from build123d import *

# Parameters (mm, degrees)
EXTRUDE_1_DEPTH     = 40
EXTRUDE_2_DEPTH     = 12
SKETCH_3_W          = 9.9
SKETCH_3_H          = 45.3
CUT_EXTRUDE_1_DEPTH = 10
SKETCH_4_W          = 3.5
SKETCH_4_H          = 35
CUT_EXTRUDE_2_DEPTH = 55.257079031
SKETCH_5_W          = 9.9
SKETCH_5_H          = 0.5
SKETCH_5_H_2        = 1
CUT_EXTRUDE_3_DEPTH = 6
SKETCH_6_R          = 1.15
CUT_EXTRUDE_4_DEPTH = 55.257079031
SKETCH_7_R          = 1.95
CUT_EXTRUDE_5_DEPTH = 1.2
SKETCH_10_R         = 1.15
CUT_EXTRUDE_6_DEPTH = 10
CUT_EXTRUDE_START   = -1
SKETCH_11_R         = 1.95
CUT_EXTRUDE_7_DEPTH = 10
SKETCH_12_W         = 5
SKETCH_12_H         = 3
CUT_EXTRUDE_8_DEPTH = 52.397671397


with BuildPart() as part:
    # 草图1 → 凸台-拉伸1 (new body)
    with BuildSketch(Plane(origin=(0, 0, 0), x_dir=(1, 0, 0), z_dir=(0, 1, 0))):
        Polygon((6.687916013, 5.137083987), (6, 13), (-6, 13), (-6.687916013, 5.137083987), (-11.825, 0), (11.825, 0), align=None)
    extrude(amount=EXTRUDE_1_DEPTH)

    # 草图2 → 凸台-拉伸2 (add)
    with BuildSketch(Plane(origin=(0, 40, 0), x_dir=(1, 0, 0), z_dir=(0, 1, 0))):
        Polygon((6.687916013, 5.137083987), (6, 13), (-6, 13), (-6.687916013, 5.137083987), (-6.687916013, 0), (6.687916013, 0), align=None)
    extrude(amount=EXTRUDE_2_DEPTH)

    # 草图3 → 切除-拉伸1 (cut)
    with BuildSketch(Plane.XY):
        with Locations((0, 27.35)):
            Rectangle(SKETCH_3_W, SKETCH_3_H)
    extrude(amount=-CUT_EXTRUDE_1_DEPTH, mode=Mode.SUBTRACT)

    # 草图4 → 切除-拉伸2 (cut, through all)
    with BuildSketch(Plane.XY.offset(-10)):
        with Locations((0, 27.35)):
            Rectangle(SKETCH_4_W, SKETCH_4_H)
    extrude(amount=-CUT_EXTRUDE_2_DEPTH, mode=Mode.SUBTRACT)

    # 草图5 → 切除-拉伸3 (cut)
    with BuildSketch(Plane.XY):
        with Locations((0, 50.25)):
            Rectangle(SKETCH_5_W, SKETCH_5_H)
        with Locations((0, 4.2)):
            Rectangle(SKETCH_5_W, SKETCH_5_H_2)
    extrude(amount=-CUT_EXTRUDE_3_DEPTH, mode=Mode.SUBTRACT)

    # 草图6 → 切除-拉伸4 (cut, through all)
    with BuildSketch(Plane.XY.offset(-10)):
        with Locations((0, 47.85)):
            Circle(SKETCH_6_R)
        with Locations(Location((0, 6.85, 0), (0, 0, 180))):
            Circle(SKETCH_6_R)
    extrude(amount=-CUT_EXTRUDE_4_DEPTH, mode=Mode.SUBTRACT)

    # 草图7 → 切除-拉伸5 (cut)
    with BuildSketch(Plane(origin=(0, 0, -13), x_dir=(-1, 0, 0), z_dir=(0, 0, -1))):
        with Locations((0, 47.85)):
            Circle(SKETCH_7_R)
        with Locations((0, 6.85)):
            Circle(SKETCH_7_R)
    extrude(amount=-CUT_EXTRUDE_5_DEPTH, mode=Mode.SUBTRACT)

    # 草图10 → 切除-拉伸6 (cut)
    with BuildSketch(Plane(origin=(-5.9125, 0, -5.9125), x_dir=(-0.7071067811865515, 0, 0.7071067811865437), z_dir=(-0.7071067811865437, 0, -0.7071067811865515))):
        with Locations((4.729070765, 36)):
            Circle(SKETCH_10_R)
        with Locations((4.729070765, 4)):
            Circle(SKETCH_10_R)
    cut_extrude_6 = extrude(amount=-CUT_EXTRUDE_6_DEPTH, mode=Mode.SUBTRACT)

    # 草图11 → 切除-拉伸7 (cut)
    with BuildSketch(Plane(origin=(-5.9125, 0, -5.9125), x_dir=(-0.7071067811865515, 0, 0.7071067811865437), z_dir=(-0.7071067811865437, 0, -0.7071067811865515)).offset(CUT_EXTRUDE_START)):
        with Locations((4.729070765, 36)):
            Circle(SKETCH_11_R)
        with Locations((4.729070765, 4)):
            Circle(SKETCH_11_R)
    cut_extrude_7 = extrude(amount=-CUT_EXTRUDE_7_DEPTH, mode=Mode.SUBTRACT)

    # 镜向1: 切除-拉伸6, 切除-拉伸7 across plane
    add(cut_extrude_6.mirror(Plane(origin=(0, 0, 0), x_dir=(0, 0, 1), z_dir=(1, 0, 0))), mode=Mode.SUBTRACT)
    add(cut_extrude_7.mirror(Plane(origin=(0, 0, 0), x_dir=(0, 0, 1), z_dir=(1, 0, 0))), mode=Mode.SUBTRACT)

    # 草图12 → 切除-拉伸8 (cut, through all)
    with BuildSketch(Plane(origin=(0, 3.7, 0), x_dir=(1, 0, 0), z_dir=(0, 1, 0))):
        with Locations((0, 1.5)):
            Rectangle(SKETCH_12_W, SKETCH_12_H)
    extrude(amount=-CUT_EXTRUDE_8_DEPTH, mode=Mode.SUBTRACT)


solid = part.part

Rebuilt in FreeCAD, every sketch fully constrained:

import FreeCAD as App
import Part
import Sketcher
from FreeCAD import Vector
Q = App.Units.Quantity


def add_polygon(sketch, points):
    """Adds a closed chain of lines whose ends are joined by coincident constraints."""
    first, n = sketch.GeometryCount, len(points)
    for a, b in zip(points, points[1:] + points[:1]):
        sketch.addGeometry(Part.LineSegment(App.Vector(*a, 0), App.Vector(*b, 0)), False)
    for i in range(n):
        sketch.addConstraint(Sketcher.Constraint("Coincident", first + i, 2, first + (i + 1) % n, 1))

doc = App.newDocument("Part")
body = doc.addObject("PartDesign::Body", "Body")

sketch1 = body.newObject("Sketcher::SketchObject", "Sketch")
sketch1.AttachmentSupport = (doc.getObject("XZ_Plane"), [""])
sketch1.MapMode = "FlatFace"
add_polygon(sketch1, [(6.687916, -5.137084), (6, -13), (-6, -13), (-6.687916, -5.137084), (-11.825, 0), (11.825, 0)])
sketch1.addConstraint(Sketcher.Constraint("Horizontal", 1))
sketch1.addConstraint(Sketcher.Constraint("Horizontal", 4))
sketch1.addConstraint(Sketcher.Constraint("Symmetric", 3, 2, 4, 2, -1, 1))
sketch1.addConstraint(Sketcher.Constraint("Symmetric", 2, 2, 5, 2, -2))
sketch1.addConstraint(Sketcher.Constraint("Perpendicular", 3, 5))
sketch1.addConstraint(Sketcher.Constraint("Equal", 0, 2))
sketch1.addConstraint(Sketcher.Constraint("DistanceX", 1, 2, 1, 1, 12.0))
sketch1.addConstraint(Sketcher.Constraint("Angle", 0, Q("-95 deg")))
sketch1.addConstraint(Sketcher.Constraint("DistanceY", 0, 2, -1, 1, 13.0))
sketch1.addConstraint(Sketcher.Constraint("DistanceX", 4, 1, 4, 2, 23.65))
pad1 = body.newObject("PartDesign::Pad", "Pad")
pad1.Profile = sketch1
pad1.Length = 40
pad1.Reversed = True

sketch2 = body.newObject("Sketcher::SketchObject", "Sketch001")
sketch2.AttachmentSupport = (doc.getObject("XZ_Plane"), [""])
sketch2.MapMode = "FlatFace"
sketch2.AttachmentOffset = App.Placement(Vector(0, 0, -40), App.Rotation())
add_polygon(sketch2, [(6.687916, -5.137084), (6, -13), (-6, -13), (-6.687916, -5.137084), (-6.687916, 0), (6.687916, 0)])
sketch2.addConstraint(Sketcher.Constraint("Horizontal", 1))
sketch2.addConstraint(Sketcher.Constraint("Vertical", 3))
sketch2.addConstraint(Sketcher.Constraint("Horizontal", 4))
sketch2.addConstraint(Sketcher.Constraint("Vertical", 5))
sketch2.addConstraint(Sketcher.Constraint("Symmetric", 3, 2, 4, 2, -1, 1))
sketch2.addConstraint(Sketcher.Constraint("Horizontal", 2, 2, 5, 2))
sketch2.addConstraint(Sketcher.Constraint("Equal", 0, 2))
sketch2.addConstraint(Sketcher.Constraint("DistanceX", 1, 2, 1, 1, 12.0))
sketch2.addConstraint(Sketcher.Constraint("Angle", 0, Q("-95 deg")))
sketch2.addConstraint(Sketcher.Constraint("DistanceY", 0, 2, -1, 1, 13.0))
sketch2.addConstraint(Sketcher.Constraint("Distance", 0, 7.892951))
pad2 = body.newObject("PartDesign::Pad", "Pad001")
pad2.Profile = sketch2
pad2.Length = 12
pad2.Reversed = True

sketch3 = body.newObject("Sketcher::SketchObject", "Sketch002")
sketch3.AttachmentSupport = (doc.getObject("XY_Plane"), [""])
sketch3.MapMode = "FlatFace"
add_polygon(sketch3, [(-4.95, 50), (-4.95, 4.7), (4.95, 4.7), (4.95, 50)])
sketch3.addConstraint(Sketcher.Constraint("Vertical", 0))
sketch3.addConstraint(Sketcher.Constraint("Horizontal", 1))
sketch3.addConstraint(Sketcher.Constraint("Vertical", 2))
sketch3.addConstraint(Sketcher.Constraint("Horizontal", 3))
sketch3.addConstraint(Sketcher.Constraint("DistanceX", 1, 1, 1, 2, 9.9))
sketch3.addConstraint(Sketcher.Constraint("DistanceY", 0, 2, 0, 1, 45.3))
sketch3.addConstraint(Sketcher.Constraint("DistanceY", -1, 1, 2, 2, 50.0))
sketch3.addConstraint(Sketcher.Constraint("DistanceX", 0, 2, -1, 1, 4.95))
pocket1 = body.newObject("PartDesign::Pocket", "Pocket")
pocket1.Profile = sketch3
pocket1.Length = 10

sketch4 = body.newObject("Sketcher::SketchObject", "Sketch003")
sketch4.AttachmentSupport = (doc.getObject("XY_Plane"), [""])
sketch4.MapMode = "FlatFace"
sketch4.AttachmentOffset = App.Placement(Vector(0, 0, -10), App.Rotation())
add_polygon(sketch4, [(-1.75, 44.85), (-1.75, 9.85), (1.75, 9.85), (1.75, 44.85)])
sketch4.addConstraint(Sketcher.Constraint("Vertical", 0))
sketch4.addConstraint(Sketcher.Constraint("Horizontal", 1))
sketch4.addConstraint(Sketcher.Constraint("Vertical", 2))
sketch4.addConstraint(Sketcher.Constraint("Horizontal", 3))
sketch4.addConstraint(Sketcher.Constraint("DistanceY", 0, 2, 0, 1, 35.0))
sketch4.addConstraint(Sketcher.Constraint("DistanceX", 1, 1, 1, 2, 3.5))
sketch4.addConstraint(Sketcher.Constraint("DistanceX", 0, 2, -1, 1, 1.75))
sketch4.addConstraint(Sketcher.Constraint("DistanceY", -1, 1, 0, 2, 9.85))
pocket2 = body.newObject("PartDesign::Pocket", "Pocket001")
pocket2.Profile = sketch4
pocket2.Type = "ThroughAll"

sketch5 = body.newObject("Sketcher::SketchObject", "Sketch004")
sketch5.AttachmentSupport = (doc.getObject("XY_Plane"), [""])
sketch5.MapMode = "FlatFace"
add_polygon(sketch5, [(-4.95, 50.5), (-4.95, 50), (4.95, 50), (4.95, 50.5)])
add_polygon(sketch5, [(-4.95, 4.7), (-4.95, 3.7), (4.95, 3.7), (4.95, 4.7)])
sketch5.addConstraint(Sketcher.Constraint("Vertical", 0))
sketch5.addConstraint(Sketcher.Constraint("Horizontal", 1))
sketch5.addConstraint(Sketcher.Constraint("Vertical", 2))
sketch5.addConstraint(Sketcher.Constraint("Horizontal", 3))
sketch5.addConstraint(Sketcher.Constraint("Vertical", 4))
sketch5.addConstraint(Sketcher.Constraint("Horizontal", 5))
sketch5.addConstraint(Sketcher.Constraint("Vertical", 6))
sketch5.addConstraint(Sketcher.Constraint("Horizontal", 7))
sketch5.addConstraint(Sketcher.Constraint("Vertical", 3, 2, 4, 2))
sketch5.addConstraint(Sketcher.Constraint("Vertical", 2, 2, 5, 2))
sketch5.addConstraint(Sketcher.Constraint("DistanceY", 4, 2, 4, 1, 1.0))
sketch5.addConstraint(Sketcher.Constraint("DistanceX", 1, 1, 1, 2, 9.9))
sketch5.addConstraint(Sketcher.Constraint("DistanceY", 0, 2, 0, 1, 0.5))
sketch5.addConstraint(Sketcher.Constraint("DistanceY", -1, 1, 0, 2, 50.0))
sketch5.addConstraint(Sketcher.Constraint("DistanceY", -1, 1, 4, 2, 3.7))
sketch5.addConstraint(Sketcher.Constraint("DistanceX", 0, 2, -1, 1, 4.95))
pocket3 = body.newObject("PartDesign::Pocket", "Pocket002")
pocket3.Profile = sketch5
pocket3.Length = 6

sketch6 = body.newObject("Sketcher::SketchObject", "Sketch005")
sketch6.AttachmentSupport = (doc.getObject("XY_Plane"), [""])
sketch6.MapMode = "FlatFace"
sketch6.AttachmentOffset = App.Placement(Vector(0, 0, -10), App.Rotation())
sketch6.addGeometry(Part.Circle(Vector(0, 47.85, 0), Vector(0, 0, 1), 1.15), False)
sketch6.addGeometry(Part.Circle(Vector(0, 6.85, 0), Vector(0, 0, 1), 1.15), False)
sketch6.addConstraint(Sketcher.Constraint("Equal", 0, 1))
sketch6.addConstraint(Sketcher.Constraint("PointOnObject", 0, 3, -2))
sketch6.addConstraint(Sketcher.Constraint("PointOnObject", 1, 3, -2))
sketch6.addConstraint(Sketcher.Constraint("Diameter", 0, 2.3))
sketch6.addConstraint(Sketcher.Constraint("DistanceY", 1, 3, 0, 3, 41.0))
sketch6.addConstraint(Sketcher.Constraint("DistanceY", -1, 1, 0, 3, 47.85))
pocket4 = body.newObject("PartDesign::Pocket", "Pocket003")
pocket4.Profile = sketch6
pocket4.Type = "ThroughAll"

sketch7 = body.newObject("Sketcher::SketchObject", "Sketch006")
sketch7.AttachmentSupport = (doc.getObject("XY_Plane"), [""])
sketch7.MapMode = "FlatFace"
sketch7.AttachmentOffset = App.Placement(Vector(0, 0, -13), App.Rotation())
sketch7.addGeometry(Part.Circle(Vector(0, 47.85, 0), Vector(0, 0, 1), 1.95), False)
sketch7.addGeometry(Part.Circle(Vector(0, 6.85, 0), Vector(0, 0, 1), 1.95), False)
sketch7.addConstraint(Sketcher.Constraint("Equal", 0, 1))
sketch7.addConstraint(Sketcher.Constraint("PointOnObject", 0, 3, -2))
sketch7.addConstraint(Sketcher.Constraint("PointOnObject", 1, 3, -2))
sketch7.addConstraint(Sketcher.Constraint("Diameter", 0, 3.9))
sketch7.addConstraint(Sketcher.Constraint("DistanceY", 1, 3, 0, 3, 41.0))
sketch7.addConstraint(Sketcher.Constraint("DistanceY", -1, 1, 0, 3, 47.85))
pocket5 = body.newObject("PartDesign::Pocket", "Pocket004")
pocket5.Profile = sketch7
pocket5.Length = 1.2
pocket5.Reversed = True

sketch8 = body.newObject("Sketcher::SketchObject", "Sketch007")
sketch8.Placement = App.Placement(Vector(-5.9125, 0, -5.9125), App.Rotation(Vector(-0.707106781, 0, 0.707106781), Vector(0, 0.999999999, 0), Vector(-0.707106781, 0, -0.707106781), "ZXY"))
sketch8.addGeometry(Part.Circle(Vector(4.729071, 36, 0), Vector(0, 0, 1), 1.15), False)
sketch8.addGeometry(Part.Circle(Vector(4.729071, 4, 0), Vector(0, 0, 1), 1.15), False)
sketch8.addConstraint(Sketcher.Constraint("Equal", 0, 1))
sketch8.addConstraint(Sketcher.Constraint("Vertical", 0, 3, 1, 3))
sketch8.addConstraint(Sketcher.Constraint("Diameter", 0, 2.3))
sketch8.addConstraint(Sketcher.Constraint("DistanceY", -1, 1, 0, 3, 36.0))
sketch8.addConstraint(Sketcher.Constraint("DistanceY", -1, 1, 1, 3, 4.0))
sketch8.addConstraint(Sketcher.Constraint("DistanceX", -1, 1, 0, 3, 4.729071))
pocket6 = body.newObject("PartDesign::Pocket", "Pocket005")
pocket6.Profile = sketch8
pocket6.Length = 10

sketch9 = body.newObject("Sketcher::SketchObject", "Sketch008")
sketch9.Placement = App.Placement(Vector(-5.205393, 0, -5.205393), App.Rotation(Vector(-0.707106781, 0, 0.707106781), Vector(0, 0.999999999, 0), Vector(-0.707106781, 0, -0.707106781), "ZXY"))
sketch9.addGeometry(Part.Circle(Vector(4.729071, 36, 0), Vector(0, 0, 1), 1.95), False)
sketch9.addGeometry(Part.Circle(Vector(4.729071, 4, 0), Vector(0, 0, 1), 1.95), False)
sketch9.addConstraint(Sketcher.Constraint("Equal", 0, 1))
sketch9.addConstraint(Sketcher.Constraint("Vertical", 0, 3, 1, 3))
sketch9.addConstraint(Sketcher.Constraint("Diameter", 0, 3.9))
sketch9.addConstraint(Sketcher.Constraint("DistanceY", -1, 1, 0, 3, 36.0))
sketch9.addConstraint(Sketcher.Constraint("DistanceY", -1, 1, 1, 3, 4.0))
sketch9.addConstraint(Sketcher.Constraint("DistanceX", -1, 1, 0, 3, 4.729071))
pocket7 = body.newObject("PartDesign::Pocket", "Pocket006")
pocket7.Profile = sketch9
pocket7.Length = 10
doc.recompute()

mirrored = body.newObject("PartDesign::Mirrored", "Mirrored")
mirrored.Originals = [pocket6, pocket7]
mirrored.MirrorPlane = (doc.getObject("YZ_Plane"), [""])
body.Tip = mirrored

sketch10 = body.newObject("Sketcher::SketchObject", "Sketch009")
sketch10.AttachmentSupport = (doc.getObject("XZ_Plane"), [""])
sketch10.MapMode = "FlatFace"
sketch10.AttachmentOffset = App.Placement(Vector(0, 0, -3.7), App.Rotation())
add_polygon(sketch10, [(-2.5, -3), (-2.5, 0), (2.5, 0), (2.5, -3)])
sketch10.addConstraint(Sketcher.Constraint("Vertical", 0))
sketch10.addConstraint(Sketcher.Constraint("Horizontal", 1))
sketch10.addConstraint(Sketcher.Constraint("Vertical", 2))
sketch10.addConstraint(Sketcher.Constraint("Horizontal", 3))
sketch10.addConstraint(Sketcher.Constraint("Symmetric", 0, 2, 1, 2, -1, 1))
sketch10.addConstraint(Sketcher.Constraint("DistanceX", 1, 1, 1, 2, 5.0))
sketch10.addConstraint(Sketcher.Constraint("DistanceY", 0, 1, 0, 2, 3.0))
pocket8 = body.newObject("PartDesign::Pocket", "Pocket007")
pocket8.Profile = sketch10
pocket8.Type = "ThroughAll"
pocket8.Reversed = True

doc.recompute()
